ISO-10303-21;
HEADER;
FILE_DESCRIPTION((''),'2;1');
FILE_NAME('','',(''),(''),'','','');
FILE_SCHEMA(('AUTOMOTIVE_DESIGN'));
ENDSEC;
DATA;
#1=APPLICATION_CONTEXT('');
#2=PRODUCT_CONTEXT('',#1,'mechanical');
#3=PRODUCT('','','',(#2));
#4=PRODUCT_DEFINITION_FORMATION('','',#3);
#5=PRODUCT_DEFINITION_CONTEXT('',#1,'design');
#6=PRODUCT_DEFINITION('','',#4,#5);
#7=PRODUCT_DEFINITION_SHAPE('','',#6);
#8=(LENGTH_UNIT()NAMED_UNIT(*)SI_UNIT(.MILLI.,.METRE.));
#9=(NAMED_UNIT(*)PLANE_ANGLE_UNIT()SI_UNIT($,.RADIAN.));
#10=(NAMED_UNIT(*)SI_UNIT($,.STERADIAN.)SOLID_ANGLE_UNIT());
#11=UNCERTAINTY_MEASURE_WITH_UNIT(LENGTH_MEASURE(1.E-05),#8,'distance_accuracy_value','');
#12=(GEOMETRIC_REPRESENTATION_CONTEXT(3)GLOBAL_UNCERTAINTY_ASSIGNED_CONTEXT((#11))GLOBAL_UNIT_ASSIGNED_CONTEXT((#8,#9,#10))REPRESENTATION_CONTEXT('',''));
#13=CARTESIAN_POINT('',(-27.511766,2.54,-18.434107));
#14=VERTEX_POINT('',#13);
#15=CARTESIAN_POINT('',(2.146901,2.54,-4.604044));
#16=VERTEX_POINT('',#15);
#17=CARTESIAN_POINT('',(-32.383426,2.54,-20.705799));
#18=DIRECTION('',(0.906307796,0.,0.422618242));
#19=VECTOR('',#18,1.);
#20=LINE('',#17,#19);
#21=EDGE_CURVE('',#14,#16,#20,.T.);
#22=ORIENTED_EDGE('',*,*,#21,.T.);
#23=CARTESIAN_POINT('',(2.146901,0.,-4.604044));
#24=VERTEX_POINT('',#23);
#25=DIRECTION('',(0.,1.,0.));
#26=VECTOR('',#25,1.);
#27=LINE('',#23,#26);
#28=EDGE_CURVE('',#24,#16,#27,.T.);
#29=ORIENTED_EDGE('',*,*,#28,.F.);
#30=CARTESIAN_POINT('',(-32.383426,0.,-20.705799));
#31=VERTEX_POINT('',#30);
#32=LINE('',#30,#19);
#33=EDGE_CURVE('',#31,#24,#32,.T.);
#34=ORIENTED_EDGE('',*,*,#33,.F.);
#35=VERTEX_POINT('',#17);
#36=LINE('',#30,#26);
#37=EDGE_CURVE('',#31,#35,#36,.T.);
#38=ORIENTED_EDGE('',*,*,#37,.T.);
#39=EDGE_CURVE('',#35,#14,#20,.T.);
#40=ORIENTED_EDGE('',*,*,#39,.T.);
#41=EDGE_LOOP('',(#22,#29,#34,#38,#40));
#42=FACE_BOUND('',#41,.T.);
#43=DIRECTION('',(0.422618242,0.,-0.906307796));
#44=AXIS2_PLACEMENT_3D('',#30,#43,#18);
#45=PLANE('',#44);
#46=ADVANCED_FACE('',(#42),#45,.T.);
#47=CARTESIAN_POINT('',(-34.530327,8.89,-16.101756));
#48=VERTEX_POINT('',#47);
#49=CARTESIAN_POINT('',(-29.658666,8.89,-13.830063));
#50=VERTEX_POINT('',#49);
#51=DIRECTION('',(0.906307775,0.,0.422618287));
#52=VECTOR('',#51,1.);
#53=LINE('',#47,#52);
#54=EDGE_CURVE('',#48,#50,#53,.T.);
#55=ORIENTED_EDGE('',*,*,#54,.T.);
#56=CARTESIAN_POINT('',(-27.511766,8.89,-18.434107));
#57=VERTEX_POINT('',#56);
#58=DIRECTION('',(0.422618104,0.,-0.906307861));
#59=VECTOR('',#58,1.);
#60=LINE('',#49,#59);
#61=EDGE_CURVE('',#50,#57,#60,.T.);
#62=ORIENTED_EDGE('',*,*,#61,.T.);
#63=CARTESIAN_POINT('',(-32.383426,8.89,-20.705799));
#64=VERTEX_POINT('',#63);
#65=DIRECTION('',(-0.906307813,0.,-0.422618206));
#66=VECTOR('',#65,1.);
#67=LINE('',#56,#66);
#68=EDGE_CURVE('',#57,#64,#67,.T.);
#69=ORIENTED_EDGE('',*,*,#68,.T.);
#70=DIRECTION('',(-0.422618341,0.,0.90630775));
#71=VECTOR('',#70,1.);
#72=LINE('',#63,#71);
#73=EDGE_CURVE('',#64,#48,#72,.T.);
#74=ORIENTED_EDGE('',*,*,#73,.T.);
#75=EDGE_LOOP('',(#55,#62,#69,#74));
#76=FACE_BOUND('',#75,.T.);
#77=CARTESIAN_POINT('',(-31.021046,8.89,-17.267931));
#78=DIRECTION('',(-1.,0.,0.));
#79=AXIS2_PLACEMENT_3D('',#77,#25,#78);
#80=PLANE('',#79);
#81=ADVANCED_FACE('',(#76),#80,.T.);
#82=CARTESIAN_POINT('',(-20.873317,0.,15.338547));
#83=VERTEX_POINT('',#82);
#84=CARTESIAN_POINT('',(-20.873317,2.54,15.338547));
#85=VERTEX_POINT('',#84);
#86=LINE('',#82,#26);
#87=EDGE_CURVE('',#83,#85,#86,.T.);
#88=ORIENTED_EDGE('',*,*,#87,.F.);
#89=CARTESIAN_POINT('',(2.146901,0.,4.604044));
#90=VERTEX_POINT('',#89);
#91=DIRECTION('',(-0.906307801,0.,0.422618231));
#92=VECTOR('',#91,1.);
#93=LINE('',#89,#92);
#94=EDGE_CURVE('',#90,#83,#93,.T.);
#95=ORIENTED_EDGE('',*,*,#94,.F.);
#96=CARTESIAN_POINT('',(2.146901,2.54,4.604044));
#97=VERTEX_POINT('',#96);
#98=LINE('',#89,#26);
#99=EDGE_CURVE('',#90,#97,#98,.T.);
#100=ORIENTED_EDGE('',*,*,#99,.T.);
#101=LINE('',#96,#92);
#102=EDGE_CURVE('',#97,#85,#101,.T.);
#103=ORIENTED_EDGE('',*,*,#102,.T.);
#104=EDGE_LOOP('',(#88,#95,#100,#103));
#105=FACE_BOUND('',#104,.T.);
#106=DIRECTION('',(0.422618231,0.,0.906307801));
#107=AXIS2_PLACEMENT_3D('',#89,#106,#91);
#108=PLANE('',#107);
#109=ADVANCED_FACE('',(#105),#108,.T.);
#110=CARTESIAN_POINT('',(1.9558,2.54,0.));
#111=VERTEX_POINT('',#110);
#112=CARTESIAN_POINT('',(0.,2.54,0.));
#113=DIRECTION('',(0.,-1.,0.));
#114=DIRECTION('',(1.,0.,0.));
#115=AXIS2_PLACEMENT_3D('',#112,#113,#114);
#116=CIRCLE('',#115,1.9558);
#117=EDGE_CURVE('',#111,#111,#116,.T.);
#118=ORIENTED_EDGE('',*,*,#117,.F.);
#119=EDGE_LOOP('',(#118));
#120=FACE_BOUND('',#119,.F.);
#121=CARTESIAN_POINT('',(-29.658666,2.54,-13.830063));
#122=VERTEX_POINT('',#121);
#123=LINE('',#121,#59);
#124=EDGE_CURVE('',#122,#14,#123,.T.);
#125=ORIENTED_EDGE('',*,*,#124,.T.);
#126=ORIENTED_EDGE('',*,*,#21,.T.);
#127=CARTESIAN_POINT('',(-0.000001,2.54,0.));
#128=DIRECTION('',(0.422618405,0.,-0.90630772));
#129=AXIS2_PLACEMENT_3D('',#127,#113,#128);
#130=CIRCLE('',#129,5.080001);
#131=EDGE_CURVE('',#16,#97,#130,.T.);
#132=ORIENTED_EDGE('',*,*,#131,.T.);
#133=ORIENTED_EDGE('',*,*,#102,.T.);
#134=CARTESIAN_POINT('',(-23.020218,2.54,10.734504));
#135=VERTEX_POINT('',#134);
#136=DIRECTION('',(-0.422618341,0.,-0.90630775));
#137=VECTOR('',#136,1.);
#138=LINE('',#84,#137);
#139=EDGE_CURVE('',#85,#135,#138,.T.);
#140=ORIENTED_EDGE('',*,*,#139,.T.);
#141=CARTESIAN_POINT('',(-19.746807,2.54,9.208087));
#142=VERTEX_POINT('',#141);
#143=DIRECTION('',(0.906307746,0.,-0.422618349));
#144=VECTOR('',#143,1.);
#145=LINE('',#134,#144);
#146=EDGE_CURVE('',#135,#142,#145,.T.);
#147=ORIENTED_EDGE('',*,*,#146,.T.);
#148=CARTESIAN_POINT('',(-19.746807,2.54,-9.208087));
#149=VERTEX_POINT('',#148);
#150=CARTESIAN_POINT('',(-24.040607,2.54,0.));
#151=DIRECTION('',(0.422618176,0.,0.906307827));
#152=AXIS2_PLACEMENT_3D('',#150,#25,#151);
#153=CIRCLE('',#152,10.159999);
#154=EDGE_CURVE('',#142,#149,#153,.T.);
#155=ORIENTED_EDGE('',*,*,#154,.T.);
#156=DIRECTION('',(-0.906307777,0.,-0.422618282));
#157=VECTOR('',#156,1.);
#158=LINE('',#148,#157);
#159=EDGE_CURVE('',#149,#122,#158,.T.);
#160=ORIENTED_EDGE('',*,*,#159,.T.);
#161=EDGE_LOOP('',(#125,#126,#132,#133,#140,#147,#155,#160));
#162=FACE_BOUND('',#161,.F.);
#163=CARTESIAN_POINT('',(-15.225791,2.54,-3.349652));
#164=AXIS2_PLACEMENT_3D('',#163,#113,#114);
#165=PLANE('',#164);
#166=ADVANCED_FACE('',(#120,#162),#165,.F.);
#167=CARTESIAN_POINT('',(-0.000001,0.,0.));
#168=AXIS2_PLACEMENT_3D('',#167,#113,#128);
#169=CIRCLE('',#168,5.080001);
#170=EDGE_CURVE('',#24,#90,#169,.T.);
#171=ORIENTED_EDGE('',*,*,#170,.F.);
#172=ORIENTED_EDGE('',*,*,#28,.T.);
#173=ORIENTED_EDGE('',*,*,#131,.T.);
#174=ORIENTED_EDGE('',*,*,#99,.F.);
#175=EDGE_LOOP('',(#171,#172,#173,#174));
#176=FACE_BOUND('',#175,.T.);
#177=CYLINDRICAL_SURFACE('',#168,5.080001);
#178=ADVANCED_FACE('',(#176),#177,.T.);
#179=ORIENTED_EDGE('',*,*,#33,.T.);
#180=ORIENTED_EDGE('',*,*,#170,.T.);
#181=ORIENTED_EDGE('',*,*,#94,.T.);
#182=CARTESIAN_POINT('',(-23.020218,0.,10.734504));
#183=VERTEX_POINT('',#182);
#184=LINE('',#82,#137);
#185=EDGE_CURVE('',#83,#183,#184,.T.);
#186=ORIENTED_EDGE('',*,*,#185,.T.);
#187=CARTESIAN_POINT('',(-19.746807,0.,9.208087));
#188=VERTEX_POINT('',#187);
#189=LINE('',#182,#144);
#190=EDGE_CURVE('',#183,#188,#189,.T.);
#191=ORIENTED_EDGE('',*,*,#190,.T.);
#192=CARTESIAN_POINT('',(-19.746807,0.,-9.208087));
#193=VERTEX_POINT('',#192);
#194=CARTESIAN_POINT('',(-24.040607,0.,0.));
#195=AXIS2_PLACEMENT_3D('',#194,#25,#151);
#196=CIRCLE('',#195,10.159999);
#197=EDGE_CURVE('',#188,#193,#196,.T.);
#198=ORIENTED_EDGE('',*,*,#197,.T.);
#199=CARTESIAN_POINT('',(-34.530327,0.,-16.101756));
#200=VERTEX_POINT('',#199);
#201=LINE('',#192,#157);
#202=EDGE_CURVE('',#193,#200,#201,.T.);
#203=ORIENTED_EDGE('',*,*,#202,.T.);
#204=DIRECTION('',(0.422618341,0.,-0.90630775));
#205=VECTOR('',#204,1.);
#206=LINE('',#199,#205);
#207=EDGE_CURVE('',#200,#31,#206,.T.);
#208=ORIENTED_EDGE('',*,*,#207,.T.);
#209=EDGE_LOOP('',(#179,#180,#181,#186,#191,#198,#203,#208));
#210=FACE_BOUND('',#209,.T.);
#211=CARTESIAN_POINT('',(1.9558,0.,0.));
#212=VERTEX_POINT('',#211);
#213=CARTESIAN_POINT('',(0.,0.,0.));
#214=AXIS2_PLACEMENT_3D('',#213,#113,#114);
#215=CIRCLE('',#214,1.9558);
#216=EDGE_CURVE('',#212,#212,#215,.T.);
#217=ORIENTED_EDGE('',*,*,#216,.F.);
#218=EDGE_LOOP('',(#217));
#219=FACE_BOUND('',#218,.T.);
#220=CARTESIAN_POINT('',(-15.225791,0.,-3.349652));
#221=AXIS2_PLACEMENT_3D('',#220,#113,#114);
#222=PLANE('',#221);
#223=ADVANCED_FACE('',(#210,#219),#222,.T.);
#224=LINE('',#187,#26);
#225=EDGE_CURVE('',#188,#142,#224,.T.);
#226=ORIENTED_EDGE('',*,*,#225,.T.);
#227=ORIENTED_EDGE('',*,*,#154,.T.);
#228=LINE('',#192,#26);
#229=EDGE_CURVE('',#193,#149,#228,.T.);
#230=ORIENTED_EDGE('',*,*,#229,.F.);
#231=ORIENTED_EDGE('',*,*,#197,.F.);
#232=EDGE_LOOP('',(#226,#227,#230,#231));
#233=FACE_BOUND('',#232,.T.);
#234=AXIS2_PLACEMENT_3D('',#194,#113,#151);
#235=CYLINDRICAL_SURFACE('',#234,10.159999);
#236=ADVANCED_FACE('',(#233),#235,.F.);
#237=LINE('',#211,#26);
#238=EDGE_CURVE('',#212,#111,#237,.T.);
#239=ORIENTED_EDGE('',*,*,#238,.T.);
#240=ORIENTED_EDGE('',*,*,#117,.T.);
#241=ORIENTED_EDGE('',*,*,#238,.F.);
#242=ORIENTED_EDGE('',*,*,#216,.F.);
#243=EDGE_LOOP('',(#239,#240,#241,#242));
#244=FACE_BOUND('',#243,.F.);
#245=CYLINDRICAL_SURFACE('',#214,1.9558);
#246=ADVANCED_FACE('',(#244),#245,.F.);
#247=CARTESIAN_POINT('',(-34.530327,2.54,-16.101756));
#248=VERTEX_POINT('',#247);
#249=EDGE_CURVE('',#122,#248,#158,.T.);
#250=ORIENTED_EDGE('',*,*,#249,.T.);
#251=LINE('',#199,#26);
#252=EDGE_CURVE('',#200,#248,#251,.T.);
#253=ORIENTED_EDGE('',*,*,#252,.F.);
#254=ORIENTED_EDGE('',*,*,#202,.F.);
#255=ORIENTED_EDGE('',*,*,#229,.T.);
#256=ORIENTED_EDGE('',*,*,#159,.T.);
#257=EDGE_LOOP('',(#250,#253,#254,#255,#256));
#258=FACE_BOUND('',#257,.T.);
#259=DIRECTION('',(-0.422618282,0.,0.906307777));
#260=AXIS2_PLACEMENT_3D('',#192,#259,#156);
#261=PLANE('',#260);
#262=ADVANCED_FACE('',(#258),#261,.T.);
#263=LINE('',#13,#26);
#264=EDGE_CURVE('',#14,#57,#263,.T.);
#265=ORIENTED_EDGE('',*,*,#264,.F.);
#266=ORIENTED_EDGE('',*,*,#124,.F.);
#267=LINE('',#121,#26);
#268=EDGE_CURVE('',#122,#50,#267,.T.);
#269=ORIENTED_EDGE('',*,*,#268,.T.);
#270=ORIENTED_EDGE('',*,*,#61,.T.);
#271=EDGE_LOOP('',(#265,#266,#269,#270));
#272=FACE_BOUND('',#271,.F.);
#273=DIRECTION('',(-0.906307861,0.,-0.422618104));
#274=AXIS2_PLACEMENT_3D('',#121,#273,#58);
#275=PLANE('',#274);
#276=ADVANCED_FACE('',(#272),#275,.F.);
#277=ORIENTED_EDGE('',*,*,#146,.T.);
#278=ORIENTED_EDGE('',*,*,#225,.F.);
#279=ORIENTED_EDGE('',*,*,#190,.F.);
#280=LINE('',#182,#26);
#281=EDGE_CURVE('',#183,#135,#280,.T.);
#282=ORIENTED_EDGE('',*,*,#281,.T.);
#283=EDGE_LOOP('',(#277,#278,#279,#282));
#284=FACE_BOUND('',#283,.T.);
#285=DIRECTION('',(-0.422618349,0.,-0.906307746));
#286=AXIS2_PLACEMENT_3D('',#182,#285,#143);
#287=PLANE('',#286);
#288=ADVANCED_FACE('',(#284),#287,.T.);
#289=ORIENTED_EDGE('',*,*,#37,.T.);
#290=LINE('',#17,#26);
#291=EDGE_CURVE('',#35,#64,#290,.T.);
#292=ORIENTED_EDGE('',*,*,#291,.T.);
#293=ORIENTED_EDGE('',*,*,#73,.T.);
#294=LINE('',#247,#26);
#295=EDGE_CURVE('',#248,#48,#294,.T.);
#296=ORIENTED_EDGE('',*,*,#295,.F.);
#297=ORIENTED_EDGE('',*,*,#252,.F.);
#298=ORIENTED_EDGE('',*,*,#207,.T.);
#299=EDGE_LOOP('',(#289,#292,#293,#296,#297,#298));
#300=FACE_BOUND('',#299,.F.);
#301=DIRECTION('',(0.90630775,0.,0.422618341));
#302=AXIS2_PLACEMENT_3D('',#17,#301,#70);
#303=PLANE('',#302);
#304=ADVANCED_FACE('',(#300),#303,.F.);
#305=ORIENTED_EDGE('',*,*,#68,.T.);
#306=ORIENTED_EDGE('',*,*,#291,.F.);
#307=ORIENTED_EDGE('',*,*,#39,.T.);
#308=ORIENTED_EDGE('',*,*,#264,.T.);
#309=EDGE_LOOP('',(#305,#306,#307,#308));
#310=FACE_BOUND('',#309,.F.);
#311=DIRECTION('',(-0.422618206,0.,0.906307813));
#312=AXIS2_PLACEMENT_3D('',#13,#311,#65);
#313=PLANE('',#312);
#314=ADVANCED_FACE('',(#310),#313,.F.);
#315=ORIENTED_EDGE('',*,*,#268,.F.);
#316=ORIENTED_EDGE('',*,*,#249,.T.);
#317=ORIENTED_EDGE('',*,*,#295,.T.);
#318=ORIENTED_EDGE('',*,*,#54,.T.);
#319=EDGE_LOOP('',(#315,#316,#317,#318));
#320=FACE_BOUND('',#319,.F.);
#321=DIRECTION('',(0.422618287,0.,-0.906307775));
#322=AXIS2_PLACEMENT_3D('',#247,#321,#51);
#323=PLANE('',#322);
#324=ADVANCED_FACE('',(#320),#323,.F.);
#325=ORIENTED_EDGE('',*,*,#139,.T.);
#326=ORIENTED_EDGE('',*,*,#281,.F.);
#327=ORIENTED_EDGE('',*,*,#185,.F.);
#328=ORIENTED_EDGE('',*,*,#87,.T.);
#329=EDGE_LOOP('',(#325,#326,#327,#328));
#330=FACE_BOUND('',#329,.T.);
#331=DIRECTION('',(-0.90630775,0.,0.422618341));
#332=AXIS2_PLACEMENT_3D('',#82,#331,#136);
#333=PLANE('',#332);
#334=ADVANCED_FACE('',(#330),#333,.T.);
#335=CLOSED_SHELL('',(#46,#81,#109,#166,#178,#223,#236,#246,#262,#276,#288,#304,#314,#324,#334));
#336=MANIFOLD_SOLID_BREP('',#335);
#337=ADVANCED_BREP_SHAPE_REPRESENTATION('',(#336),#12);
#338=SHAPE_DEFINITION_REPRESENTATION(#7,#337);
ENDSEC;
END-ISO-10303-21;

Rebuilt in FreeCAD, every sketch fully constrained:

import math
import FreeCAD as App
import Part
import Sketcher
from FreeCAD import Vector
Q = App.Units.Quantity

doc = App.newDocument("Part")
params = doc.addObject("Spreadsheet::Sheet", "Params")
for row, (alias, value) in enumerate([
    ("sketch1_radius", "0.2 in"),
    ("sketch1_radius2", "0.4 in"),
    ("sketch1_length", "1 in"),
    ("sketch1_diameter", "0.154 in"),
    ("sketch1_length2", "0.2 in"),
    ("pad1_length", "0.1 in"),
    ("sketch2_length", "0.2 in"),
    ("pad2_length", "0.25 in"),
], start=1):
    params.set(f"A{row}", alias)
    params.set(f"B{row}", "=" + value)
    params.setAlias(f"B{row}", alias)

body = doc.addObject("PartDesign::Body", "Body")

# Sketch on XZ plane
sketch1 = body.newObject("Sketcher::SketchObject", "Sketch")
sketch1.AttachmentSupport = (doc.getObject("XZ_Plane"), [""])
sketch1.MapMode = "FlatFace"
sketch1.addGeometry(Part.ArcOfCircle(Part.Circle(Vector(-0.000001, 0, 0), Vector(0, 0, 1), 5.080001), math.radians(-64.999991), math.radians(64.999991)), False)
sketch1.addGeometry(Part.LineSegment(Vector(2.146901, 4.604044, 0), Vector(-20.873317, 15.338547, 0)), False)
sketch1.addGeometry(Part.LineSegment(Vector(-20.873317, 15.338547, 0), Vector(-23.020218, 10.734504, 0)), False)
sketch1.addGeometry(Part.LineSegment(Vector(-23.020218, 10.734504, 0), Vector(-19.746807, 9.208087, 0)), False)
sketch1.addGeometry(Part.ArcOfCircle(Part.Circle(Vector(-24.040607, 0, 0), Vector(0, 0, 1), 10.159999), math.radians(-65.000005), math.radians(65.000005)), False)
sketch1.addGeometry(Part.LineSegment(Vector(-19.746807, -9.208087, 0), Vector(-34.530327, -16.101756, 0)), False)
sketch1.addGeometry(Part.LineSegment(Vector(-34.530327, -16.101756, 0), Vector(-32.383426, -20.705799, 0)), False)
sketch1.addGeometry(Part.LineSegment(Vector(-32.383426, -20.705799, 0), Vector(2.146901, -4.604044, 0)), False)
sketch1.addGeometry(Part.Circle(Vector(0, 0, 0), Vector(0, 0, 1), 1.9558), False)
sketch1.addConstraint(Sketcher.Constraint("Tangent", 0, 2, 1, 1))
sketch1.addConstraint(Sketcher.Constraint("Coincident", 1, 2, 2, 1))
sketch1.addConstraint(Sketcher.Constraint("Coincident", 2, 2, 3, 1))
sketch1.addConstraint(Sketcher.Constraint("Tangent", 3, 2, 4, 2))
sketch1.addConstraint(Sketcher.Constraint("Tangent", 4, 1, 5, 1))
sketch1.addConstraint(Sketcher.Constraint("Coincident", 5, 2, 6, 1))
sketch1.addConstraint(Sketcher.Constraint("Coincident", 6, 2, 7, 1))
sketch1.addConstraint(Sketcher.Constraint("Tangent", 7, 2, 0, 1))
sketch1.addConstraint(Sketcher.Constraint("Coincident", 0, 3, -1, 1))
sketch1.addConstraint(Sketcher.Constraint("Coincident", 8, 3, -1, 1))
sketch1.addConstraint(Sketcher.Constraint("Symmetric", 3, 2, 4, 1, -1))
sketch1.addConstraint(Sketcher.Constraint("Perpendicular", 1, 2))
sketch1.addConstraint(Sketcher.Constraint("Perpendicular", 2, 3))
sketch1.addConstraint(Sketcher.Constraint("Perpendicular", 5, 6))
sketch1.addConstraint(Sketcher.Constraint("Perpendicular", 6, 7))
sketch1.addConstraint(Sketcher.Constraint("Radius", 0, Q("0.2 in")))
sketch1.addConstraint(Sketcher.Constraint("Radius", 4, Q("0.4 in")))
sketch1.addConstraint(Sketcher.Constraint("Distance", 1, Q("1 in")))
sketch1.addConstraint(Sketcher.Constraint("Diameter", 8, Q("0.154 in")))
sketch1.addConstraint(Sketcher.Constraint("Angle", 1, Q("155.000002 deg")))
sketch1.addConstraint(Sketcher.Constraint("Distance", 2, Q("0.2 in")))
sketch1.addConstraint(Sketcher.Constraint("Distance", 7, Q("1.5 in")))
sketch1.setExpression("Constraints[15]", "Params.sketch1_radius")
sketch1.setExpression("Constraints[16]", "Params.sketch1_radius2")
sketch1.setExpression("Constraints[17]", "Params.sketch1_length")
sketch1.setExpression("Constraints[18]", "Params.sketch1_diameter")
sketch1.setExpression("Constraints[20]", "Params.sketch1_length2")
pad1 = body.newObject("PartDesign::Pad", "Pad")
pad1.Profile = sketch1
pad1.setExpression("Length", "Params.pad1_length")
pad1.Reversed = True

# Sketch on XZ plane
sketch2 = body.newObject("Sketcher::SketchObject", "Sketch001")
sketch2.AttachmentSupport = (doc.getObject("XZ_Plane"), [""])
sketch2.MapMode = "FlatFace"
sketch2.AttachmentOffset = App.Placement(Vector(0, 0, -0.1 * 25.4), App.Rotation())
sketch2.addGeometry(Part.LineSegment(Vector(-32.383426, -20.705799, 0), Vector(-34.530327, -16.101756, 0)), False)
sketch2.addGeometry(Part.LineSegment(Vector(-34.530327, -16.101756, 0), Vector(-29.658666, -13.830063, 0)), False)
sketch2.addGeometry(Part.LineSegment(Vector(-29.658666, -13.830063, 0), Vector(-27.511766, -18.434107, 0)), False)
sketch2.addGeometry(Part.LineSegment(Vector(-27.511766, -18.434107, 0), Vector(-32.383426, -20.705799, 0)), False)
sketch2.addConstraint(Sketcher.Constraint("Coincident", 0, 2, 1, 1))
sketch2.addConstraint(Sketcher.Constraint("Coincident", 1, 2, 2, 1))
sketch2.addConstraint(Sketcher.Constraint("Coincident", 2, 2, 3, 1))
sketch2.addConstraint(Sketcher.Constraint("Coincident", 3, 2, 0, 1))
sketch2.addConstraint(Sketcher.Constraint("Perpendicular", 0, 1))
sketch2.addConstraint(Sketcher.Constraint("Perpendicular", 1, 2))
sketch2.addConstraint(Sketcher.Constraint("Perpendicular", 2, 3))
sketch2.addConstraint(Sketcher.Constraint("Angle", 0, Q("115.000005 deg")))
sketch2.addConstraint(Sketcher.Constraint("Distance", 0, Q("0.2 in")))
sketch2.addConstraint(Sketcher.Constraint("DistanceY", 3, 2, -1, 1, Q("20.705799 mm")))
sketch2.addConstraint(Sketcher.Constraint("Distance", 3, Q("5.375282 mm")))
sketch2.addConstraint(Sketcher.Constraint("DistanceX", 0, 2, -1, 1, Q("34.530327 mm")))
sketch2.setExpression("Constraints[8]", "Params.sketch2_length")
pad2 = body.newObject("PartDesign::Pad", "Pad001")
pad2.Profile = sketch2
pad2.setExpression("Length", "Params.pad2_length")
pad2.Reversed = True

doc.recompute()
